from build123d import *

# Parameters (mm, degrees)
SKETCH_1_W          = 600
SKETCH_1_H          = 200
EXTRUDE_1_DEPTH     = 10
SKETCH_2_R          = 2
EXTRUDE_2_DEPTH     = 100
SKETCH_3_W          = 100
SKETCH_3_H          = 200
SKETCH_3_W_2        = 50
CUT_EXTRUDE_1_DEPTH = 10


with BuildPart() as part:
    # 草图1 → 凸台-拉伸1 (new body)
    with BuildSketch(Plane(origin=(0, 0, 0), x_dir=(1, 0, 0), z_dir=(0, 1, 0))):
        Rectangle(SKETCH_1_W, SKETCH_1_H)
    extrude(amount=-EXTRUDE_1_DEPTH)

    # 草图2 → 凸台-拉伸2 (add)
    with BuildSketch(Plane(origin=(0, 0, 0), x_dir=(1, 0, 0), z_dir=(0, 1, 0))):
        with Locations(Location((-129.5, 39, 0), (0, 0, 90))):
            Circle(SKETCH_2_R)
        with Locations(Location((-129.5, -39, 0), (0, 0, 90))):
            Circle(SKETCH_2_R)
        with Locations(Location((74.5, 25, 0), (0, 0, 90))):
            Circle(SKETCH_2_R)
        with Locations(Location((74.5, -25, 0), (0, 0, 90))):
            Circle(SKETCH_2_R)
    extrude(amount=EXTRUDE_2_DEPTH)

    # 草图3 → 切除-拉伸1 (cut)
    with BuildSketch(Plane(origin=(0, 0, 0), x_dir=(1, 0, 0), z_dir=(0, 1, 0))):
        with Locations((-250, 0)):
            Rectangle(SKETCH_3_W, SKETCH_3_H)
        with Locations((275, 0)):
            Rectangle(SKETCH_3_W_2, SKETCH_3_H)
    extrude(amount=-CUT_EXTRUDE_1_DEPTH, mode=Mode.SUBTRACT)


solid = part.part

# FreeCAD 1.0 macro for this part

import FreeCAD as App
import Part
import Sketcher

V = App.Vector


def add_polygon(sketch, points):
    """Adds a closed chain of lines whose ends are joined by coincident constraints."""
    first, n = sketch.GeometryCount, len(points)
    for a, b in zip(points, points[1:] + points[:1]):
        sketch.addGeometry(Part.LineSegment(App.Vector(*a, 0), App.Vector(*b, 0)), False)
    for i in range(n):
        sketch.addConstraint(Sketcher.Constraint("Coincident", first + i, 2, first + (i + 1) % n, 1))

doc = App.newDocument("Part")
body = doc.addObject("PartDesign::Body", "Body")

sketch1 = body.newObject("Sketcher::SketchObject", "Sketch")
sketch1.AttachmentSupport = (doc.getObject("XZ_Plane"), [""])
sketch1.MapMode = "FlatFace"
add_polygon(sketch1, [(-300, -100), (-300, 100), (300, 100), (300, -100)])
sketch1.addConstraint(Sketcher.Constraint("Vertical", 0))
sketch1.addConstraint(Sketcher.Constraint("Horizontal", 1))
sketch1.addConstraint(Sketcher.Constraint("Vertical", 2))
sketch1.addConstraint(Sketcher.Constraint("Horizontal", 3))
sketch1.addConstraint(Sketcher.Constraint("Symmetric", 0, 2, 2, 2, -1, 1))
sketch1.addConstraint(Sketcher.Constraint("DistanceX", 1, 1, 1, 2, 600.0))
sketch1.addConstraint(Sketcher.Constraint("DistanceY", 0, 1, 0, 2, 200.0))
pad1 = body.newObject("PartDesign::Pad", "Pad")
pad1.Profile = sketch1
pad1.Length = 10

sketch2 = body.newObject("Sketcher::SketchObject", "Sketch001")
sketch2.AttachmentSupport = (doc.getObject("XZ_Plane"), [""])
sketch2.MapMode = "FlatFace"
sketch2.addGeometry(Part.Circle(V(-129.5, -39, 0), V(0, 0, 1), 2), False)
sketch2.addGeometry(Part.Circle(V(-129.5, 39, 0), V(0, 0, 1), 2), False)
sketch2.addGeometry(Part.Circle(V(74.5, -25, 0), V(0, 0, 1), 2), False)
sketch2.addGeometry(Part.Circle(V(74.5, 25, 0), V(0, 0, 1), 2), False)
sketch2.addConstraint(Sketcher.Constraint("Equal", 0, 1))
sketch2.addConstraint(Sketcher.Constraint("Equal", 1, 2))
sketch2.addConstraint(Sketcher.Constraint("Equal", 2, 3))
sketch2.addConstraint(Sketcher.Constraint("Symmetric", 0, 3, 1, 3, -1))
sketch2.addConstraint(Sketcher.Constraint("Symmetric", 2, 3, 3, 3, -1))
sketch2.addConstraint(Sketcher.Constraint("Diameter", 0, 4.0))
sketch2.addConstraint(Sketcher.Constraint("DistanceY", 0, 3, -1, 1, 39.0))
sketch2.addConstraint(Sketcher.Constraint("DistanceY", 2, 3, -1, 1, 25.0))
sketch2.addConstraint(Sketcher.Constraint("DistanceX", 0, 3, 2, 3, 204.0))
sketch2.addConstraint(Sketcher.Constraint("DistanceX", 0, 3, -1, 1, 129.5))
pad2 = body.newObject("PartDesign::Pad", "Pad001")
pad2.Profile = sketch2
pad2.Length = 100
pad2.Reversed = True

sketch3 = body.newObject("Sketcher::SketchObject", "Sketch002")
sketch3.AttachmentSupport = (doc.getObject("XZ_Plane"), [""])
sketch3.MapMode = "FlatFace"
add_polygon(sketch3, [(-300, -100), (-300, 100), (-200, 100), (-200, -100)])
add_polygon(sketch3, [(250, -100), (250, 100), (300, 100), (300, -100)])
sketch3.addConstraint(Sketcher.Constraint("Vertical", 0))
sketch3.addConstraint(Sketcher.Constraint("Horizontal", 1))
sketch3.addConstraint(Sketcher.Constraint("Vertical", 2))
sketch3.addConstraint(Sketcher.Constraint("Horizontal", 3))
sketch3.addConstraint(Sketcher.Constraint("Vertical", 4))
sketch3.addConstraint(Sketcher.Constraint("Horizontal", 5))
sketch3.addConstraint(Sketcher.Constraint("Vertical", 6))
sketch3.addConstraint(Sketcher.Constraint("Horizontal", 7))
sketch3.addConstraint(Sketcher.Constraint("Symmetric", 3, 2, 5, 2, -1, 1))
sketch3.addConstraint(Sketcher.Constraint("Horizontal", 1, 2, 4, 2))
sketch3.addConstraint(Sketcher.Constraint("Horizontal", 3, 2, 6, 2))
sketch3.addConstraint(Sketcher.Constraint("DistanceX", 1, 1, 1, 2, 100.0))
sketch3.addConstraint(Sketcher.Constraint("DistanceX", 5, 1, 5, 2, 50.0))
sketch3.addConstraint(Sketcher.Constraint("DistanceY", 0, 1, 0, 2, 200.0))
sketch3.addConstraint(Sketcher.Constraint("DistanceX", 0, 2, -1, 1, 300.0))
pocket1 = body.newObject("PartDesign::Pocket", "Pocket")
pocket1.Profile = sketch3
pocket1.Length = 10
pocket1.Reversed = True

doc.recompute()
